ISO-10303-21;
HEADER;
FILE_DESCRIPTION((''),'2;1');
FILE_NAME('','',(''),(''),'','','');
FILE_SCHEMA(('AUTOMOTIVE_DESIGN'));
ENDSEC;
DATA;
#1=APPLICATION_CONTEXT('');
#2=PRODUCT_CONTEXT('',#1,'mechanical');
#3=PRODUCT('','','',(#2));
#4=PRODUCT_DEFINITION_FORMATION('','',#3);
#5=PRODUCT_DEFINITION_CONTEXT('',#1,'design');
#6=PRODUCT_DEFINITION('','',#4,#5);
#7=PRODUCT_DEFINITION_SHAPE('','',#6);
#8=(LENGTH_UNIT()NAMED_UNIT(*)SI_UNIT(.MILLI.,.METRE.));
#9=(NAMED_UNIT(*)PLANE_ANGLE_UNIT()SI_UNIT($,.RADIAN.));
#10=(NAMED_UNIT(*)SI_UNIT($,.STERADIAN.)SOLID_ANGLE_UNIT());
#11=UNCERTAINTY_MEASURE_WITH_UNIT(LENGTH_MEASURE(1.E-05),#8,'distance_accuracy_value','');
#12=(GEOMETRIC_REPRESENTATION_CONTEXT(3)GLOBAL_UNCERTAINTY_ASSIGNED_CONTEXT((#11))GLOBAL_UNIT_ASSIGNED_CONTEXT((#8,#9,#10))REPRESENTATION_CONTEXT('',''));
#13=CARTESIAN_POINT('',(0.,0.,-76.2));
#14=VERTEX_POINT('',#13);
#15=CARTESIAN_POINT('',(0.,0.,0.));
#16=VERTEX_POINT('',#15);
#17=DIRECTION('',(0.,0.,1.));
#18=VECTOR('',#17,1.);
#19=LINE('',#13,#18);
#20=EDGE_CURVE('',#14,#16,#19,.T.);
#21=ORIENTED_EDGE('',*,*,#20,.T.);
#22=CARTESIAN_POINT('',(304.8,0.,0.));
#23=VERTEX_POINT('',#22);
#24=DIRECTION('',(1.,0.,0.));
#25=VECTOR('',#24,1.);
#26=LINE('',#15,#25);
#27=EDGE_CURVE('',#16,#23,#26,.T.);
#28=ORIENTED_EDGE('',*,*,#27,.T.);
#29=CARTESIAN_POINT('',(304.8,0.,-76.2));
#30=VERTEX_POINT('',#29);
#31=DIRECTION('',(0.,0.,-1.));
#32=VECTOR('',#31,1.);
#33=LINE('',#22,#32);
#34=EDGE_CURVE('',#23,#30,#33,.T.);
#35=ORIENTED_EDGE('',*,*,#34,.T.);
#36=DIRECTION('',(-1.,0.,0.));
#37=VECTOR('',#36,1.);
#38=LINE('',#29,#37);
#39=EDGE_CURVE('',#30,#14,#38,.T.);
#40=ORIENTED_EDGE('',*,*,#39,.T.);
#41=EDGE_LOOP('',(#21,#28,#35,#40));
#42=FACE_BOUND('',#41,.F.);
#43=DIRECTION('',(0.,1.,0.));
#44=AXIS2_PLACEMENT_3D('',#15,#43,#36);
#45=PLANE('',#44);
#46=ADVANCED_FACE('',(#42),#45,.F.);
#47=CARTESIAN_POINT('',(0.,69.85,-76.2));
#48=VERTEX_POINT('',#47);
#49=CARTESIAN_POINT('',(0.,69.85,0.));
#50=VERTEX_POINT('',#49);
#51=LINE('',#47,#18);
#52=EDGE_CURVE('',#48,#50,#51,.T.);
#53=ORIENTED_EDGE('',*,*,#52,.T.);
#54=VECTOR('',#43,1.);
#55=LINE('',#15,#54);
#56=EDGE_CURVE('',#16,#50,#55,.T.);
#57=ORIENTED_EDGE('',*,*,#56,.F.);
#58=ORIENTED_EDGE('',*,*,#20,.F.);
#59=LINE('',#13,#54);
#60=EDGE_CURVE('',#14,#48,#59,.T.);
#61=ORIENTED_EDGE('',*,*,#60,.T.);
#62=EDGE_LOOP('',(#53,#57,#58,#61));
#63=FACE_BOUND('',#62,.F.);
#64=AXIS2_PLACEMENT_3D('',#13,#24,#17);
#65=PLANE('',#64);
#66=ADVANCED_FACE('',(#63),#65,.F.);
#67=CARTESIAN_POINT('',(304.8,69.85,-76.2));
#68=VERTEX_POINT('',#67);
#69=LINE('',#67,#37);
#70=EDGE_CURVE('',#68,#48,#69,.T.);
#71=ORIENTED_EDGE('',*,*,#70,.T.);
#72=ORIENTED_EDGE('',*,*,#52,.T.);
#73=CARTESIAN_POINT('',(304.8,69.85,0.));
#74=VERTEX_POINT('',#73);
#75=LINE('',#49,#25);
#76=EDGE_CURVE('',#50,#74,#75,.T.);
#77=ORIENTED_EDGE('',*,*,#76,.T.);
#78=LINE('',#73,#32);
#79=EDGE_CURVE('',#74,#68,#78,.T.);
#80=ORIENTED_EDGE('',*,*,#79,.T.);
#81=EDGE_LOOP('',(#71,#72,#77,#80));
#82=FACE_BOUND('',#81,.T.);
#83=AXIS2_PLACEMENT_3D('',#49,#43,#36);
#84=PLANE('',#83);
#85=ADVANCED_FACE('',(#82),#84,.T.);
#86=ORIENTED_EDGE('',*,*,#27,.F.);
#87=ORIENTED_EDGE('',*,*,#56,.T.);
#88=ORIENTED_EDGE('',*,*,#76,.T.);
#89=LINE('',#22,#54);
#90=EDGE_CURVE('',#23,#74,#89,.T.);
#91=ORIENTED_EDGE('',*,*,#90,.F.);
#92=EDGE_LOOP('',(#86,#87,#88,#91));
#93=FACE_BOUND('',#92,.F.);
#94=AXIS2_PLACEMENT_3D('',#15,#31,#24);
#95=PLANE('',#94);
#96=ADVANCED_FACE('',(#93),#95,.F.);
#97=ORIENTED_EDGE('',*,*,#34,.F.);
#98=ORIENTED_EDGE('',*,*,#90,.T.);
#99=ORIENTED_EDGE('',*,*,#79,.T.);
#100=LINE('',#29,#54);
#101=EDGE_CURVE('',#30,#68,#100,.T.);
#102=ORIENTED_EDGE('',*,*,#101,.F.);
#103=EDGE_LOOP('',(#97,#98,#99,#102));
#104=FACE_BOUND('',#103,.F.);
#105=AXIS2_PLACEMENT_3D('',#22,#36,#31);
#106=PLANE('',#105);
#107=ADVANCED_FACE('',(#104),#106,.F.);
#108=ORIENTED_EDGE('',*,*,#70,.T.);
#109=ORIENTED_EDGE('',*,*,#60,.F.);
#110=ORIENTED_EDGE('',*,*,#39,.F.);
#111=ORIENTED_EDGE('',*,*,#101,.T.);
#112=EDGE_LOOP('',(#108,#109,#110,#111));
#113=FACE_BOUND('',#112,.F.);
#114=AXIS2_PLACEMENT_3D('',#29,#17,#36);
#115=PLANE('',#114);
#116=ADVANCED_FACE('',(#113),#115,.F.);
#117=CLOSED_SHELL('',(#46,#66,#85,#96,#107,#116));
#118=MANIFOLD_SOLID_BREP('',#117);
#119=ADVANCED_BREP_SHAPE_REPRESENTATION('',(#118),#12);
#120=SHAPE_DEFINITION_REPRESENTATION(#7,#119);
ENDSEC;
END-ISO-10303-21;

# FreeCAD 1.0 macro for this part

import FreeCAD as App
import Part
import Sketcher

V = App.Vector
Q = App.Units.Quantity

doc = App.newDocument("Part")
body = doc.addObject("PartDesign::Body", "Body")

sketch1 = body.newObject("Sketcher::SketchObject", "Sketch")
sketch1.AttachmentSupport = (doc.getObject("XZ_Plane"), [""])
sketch1.MapMode = "FlatFace"
sketch1.addGeometry(Part.LineSegment(V(0, -76.2, 0), V(0, 0, 0)), False)
sketch1.addGeometry(Part.LineSegment(V(0, 0, 0), V(304.8, 0, 0)), False)
sketch1.addGeometry(Part.LineSegment(V(304.8, 0, 0), V(304.8, -76.2, 0)), False)
sketch1.addGeometry(Part.LineSegment(V(304.8, -76.2, 0), V(0, -76.2, 0)), False)
sketch1.addConstraint(Sketcher.Constraint("Coincident", 0, 2, 1, 1))
sketch1.addConstraint(Sketcher.Constraint("Coincident", 1, 2, 2, 1))
sketch1.addConstraint(Sketcher.Constraint("Coincident", 2, 2, 3, 1))
sketch1.addConstraint(Sketcher.Constraint("Coincident", 3, 2, 0, 1))
sketch1.addConstraint(Sketcher.Constraint("Vertical", 0))
sketch1.addConstraint(Sketcher.Constraint("Horizontal", 1))
sketch1.addConstraint(Sketcher.Constraint("Vertical", 2))
sketch1.addConstraint(Sketcher.Constraint("Horizontal", 3))
sketch1.addConstraint(Sketcher.Constraint("Coincident", 0, 2, -1, 1))
sketch1.addConstraint(Sketcher.Constraint("DistanceX", 1, 1, 1, 2, Q("12 in")))
sketch1.addConstraint(Sketcher.Constraint("DistanceY", 0, 1, 0, 2, Q("3 in")))
pad1 = body.newObject("PartDesign::Pad", "Pad")
pad1.Profile = sketch1
pad1.Length = Q("2.75 in")
pad1.Reversed = True

doc.recompute()
